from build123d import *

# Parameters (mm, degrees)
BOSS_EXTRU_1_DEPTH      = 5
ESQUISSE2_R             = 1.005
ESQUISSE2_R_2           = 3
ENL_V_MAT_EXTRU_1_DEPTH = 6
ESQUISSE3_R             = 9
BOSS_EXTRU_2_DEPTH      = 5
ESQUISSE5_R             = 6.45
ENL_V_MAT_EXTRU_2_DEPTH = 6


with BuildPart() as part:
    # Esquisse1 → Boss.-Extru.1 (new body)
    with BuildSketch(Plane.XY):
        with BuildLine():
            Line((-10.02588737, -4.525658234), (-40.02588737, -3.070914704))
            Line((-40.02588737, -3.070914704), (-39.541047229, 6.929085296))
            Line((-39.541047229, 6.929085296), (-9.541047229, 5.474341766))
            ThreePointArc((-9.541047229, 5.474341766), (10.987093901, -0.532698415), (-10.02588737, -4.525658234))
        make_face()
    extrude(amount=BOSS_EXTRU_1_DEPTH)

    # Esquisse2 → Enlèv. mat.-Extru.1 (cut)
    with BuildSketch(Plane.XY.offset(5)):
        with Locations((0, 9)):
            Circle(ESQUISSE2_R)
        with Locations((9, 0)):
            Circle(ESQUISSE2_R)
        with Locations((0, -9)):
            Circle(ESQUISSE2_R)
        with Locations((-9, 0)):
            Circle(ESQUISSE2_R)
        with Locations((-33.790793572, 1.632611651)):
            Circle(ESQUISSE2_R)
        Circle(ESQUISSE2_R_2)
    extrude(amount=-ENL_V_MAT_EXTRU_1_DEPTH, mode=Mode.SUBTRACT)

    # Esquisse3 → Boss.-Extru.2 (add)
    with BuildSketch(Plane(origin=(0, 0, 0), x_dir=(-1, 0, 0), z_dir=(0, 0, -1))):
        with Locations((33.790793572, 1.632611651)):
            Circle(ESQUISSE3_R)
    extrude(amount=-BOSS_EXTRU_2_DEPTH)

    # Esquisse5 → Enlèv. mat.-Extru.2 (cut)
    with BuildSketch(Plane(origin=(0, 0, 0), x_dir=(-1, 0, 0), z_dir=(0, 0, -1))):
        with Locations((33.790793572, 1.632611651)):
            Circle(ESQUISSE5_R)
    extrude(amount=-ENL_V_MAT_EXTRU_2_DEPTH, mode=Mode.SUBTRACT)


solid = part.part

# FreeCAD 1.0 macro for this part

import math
import FreeCAD as App
import Part
import Sketcher

V = App.Vector
Q = App.Units.Quantity

doc = App.newDocument("Part")
params = doc.addObject("Spreadsheet::Sheet", "Params")
for row, (alias, value) in enumerate([
    ("sketch1_radius", "11 mm"),
    ("pad1_length", "5 mm"),
    ("sketch2_diameter", "6 mm"),
    ("sketch2_diameter2", "2.01 mm"),
    ("pocket1_length", "6 mm"),
    ("sketch3_diameter", "18 mm"),
    ("pad2_length", "5 mm"),
    ("sketch4_diameter", "12.9 mm"),
    ("pocket2_length", "6 mm"),
], start=1):
    params.set(f"A{row}", alias)
    params.set(f"B{row}", "=" + value)
    params.setAlias(f"B{row}", alias)

body = doc.addObject("PartDesign::Body", "Body")

# Sketch on XY plane
sketch1 = body.newObject("Sketcher::SketchObject", "Sketch")
sketch1.AttachmentSupport = (doc.getObject("XY_Plane"), [""])
sketch1.MapMode = "FlatFace"
sketch1.addGeometry(Part.LineSegment(V(-40.025887, -3.070915, 0), V(-10.025887, -4.525658, 0)), False)
sketch1.addGeometry(Part.ArcOfCircle(Part.Circle(V(0, 0, 0), V(0, 0, 1), 11), math.radians(-155.705713), math.radians(150.154202)), False)
sketch1.addGeometry(Part.LineSegment(V(-9.541047, 5.474342, 0), V(-39.541047, 6.929085, 0)), False)
sketch1.addGeometry(Part.LineSegment(V(-39.541047, 6.929085, 0), V(-40.025887, -3.070915, 0)), False)
sketch1.addConstraint(Sketcher.Constraint("Coincident", 0, 2, 1, 1))
sketch1.addConstraint(Sketcher.Constraint("Coincident", 1, 2, 2, 1))
sketch1.addConstraint(Sketcher.Constraint("Coincident", 2, 2, 3, 1))
sketch1.addConstraint(Sketcher.Constraint("Coincident", 3, 2, 0, 1))
sketch1.addConstraint(Sketcher.Constraint("Coincident", 1, 3, -1, 1))
sketch1.addConstraint(Sketcher.Constraint("Parallel", 0, 2))
sketch1.addConstraint(Sketcher.Constraint("Equal", 0, 2))
sketch1.addConstraint(Sketcher.Constraint("Radius", 1, Q("11 mm")))
sketch1.addConstraint(Sketcher.Constraint("DistanceY", 0, 2, 1, 2, Q("10 mm")))
sketch1.addConstraint(Sketcher.Constraint("DistanceX", 2, 2, 1, 2, Q("30 mm")))
sketch1.addConstraint(Sketcher.Constraint("Distance", 0, Q("30.035251 mm")))
sketch1.addConstraint(Sketcher.Constraint("DistanceY", 0, 2, -1, 1, Q("4.525658 mm")))
sketch1.setExpression("Constraints[7]", "Params.sketch1_radius")
pad1 = body.newObject("PartDesign::Pad", "Pad")
pad1.Profile = sketch1
pad1.setExpression("Length", "Params.pad1_length")

# Sketch on XY plane
sketch2 = body.newObject("Sketcher::SketchObject", "Sketch001")
sketch2.AttachmentSupport = (doc.getObject("XY_Plane"), [""])
sketch2.MapMode = "FlatFace"
sketch2.AttachmentOffset = App.Placement(V(0, 0, 5), App.Rotation())
sketch2.addGeometry(Part.Circle(V(0, 9, 0), V(0, 0, 1), 1.005), False)
sketch2.addGeometry(Part.Circle(V(9, 0, 0), V(0, 0, 1), 1.005), False)
sketch2.addGeometry(Part.Circle(V(0, -9, 0), V(0, 0, 1), 1.005), False)
sketch2.addGeometry(Part.Circle(V(-9, 0, 0), V(0, 0, 1), 1.005), False)
sketch2.addGeometry(Part.Circle(V(-33.790794, 1.632612, 0), V(0, 0, 1), 1.005), False)
sketch2.addGeometry(Part.Circle(V(0, 0, 0), V(0, 0, 1), 3), False)
sketch2.addConstraint(Sketcher.Constraint("Coincident", 5, 3, -1, 1))
sketch2.addConstraint(Sketcher.Constraint("Equal", 0, 1))
sketch2.addConstraint(Sketcher.Constraint("Equal", 1, 2))
sketch2.addConstraint(Sketcher.Constraint("Equal", 2, 3))
sketch2.addConstraint(Sketcher.Constraint("Equal", 3, 4))
sketch2.addConstraint(Sketcher.Constraint("Symmetric", 0, 3, 2, 3, -1, 1))
sketch2.addConstraint(Sketcher.Constraint("Symmetric", 1, 3, 3, 3, -1, 1))
sketch2.addConstraint(Sketcher.Constraint("PointOnObject", 0, 3, -2))
sketch2.addConstraint(Sketcher.Constraint("PointOnObject", 1, 3, -1))
sketch2.addConstraint(Sketcher.Constraint("Diameter", 5, Q("6 mm")))
sketch2.addConstraint(Sketcher.Constraint("Diameter", 0, Q("2.01 mm")))
sketch2.addConstraint(Sketcher.Constraint("DistanceY", -1, 1, 0, 3, Q("9 mm")))
sketch2.addConstraint(Sketcher.Constraint("DistanceX", -1, 1, 1, 3, Q("9 mm")))
sketch2.addConstraint(Sketcher.Constraint("DistanceY", -1, 1, 4, 3, Q("1.632612 mm")))
sketch2.addConstraint(Sketcher.Constraint("DistanceX", 4, 3, -1, 1, Q("33.790794 mm")))
sketch2.setExpression("Constraints[9]", "Params.sketch2_diameter")
sketch2.setExpression("Constraints[10]", "Params.sketch2_diameter2")
pocket1 = body.newObject("PartDesign::Pocket", "Pocket")
pocket1.Profile = sketch2
pocket1.setExpression("Length", "Params.pocket1_length")

# Sketch on XY plane
sketch3 = body.newObject("Sketcher::SketchObject", "Sketch002")
sketch3.AttachmentSupport = (doc.getObject("XY_Plane"), [""])
sketch3.MapMode = "FlatFace"
sketch3.addGeometry(Part.Circle(V(-33.790794, 1.632612, 0), V(0, 0, 1), 9), False)
sketch3.addConstraint(Sketcher.Constraint("Diameter", 0, Q("18 mm")))
sketch3.addConstraint(Sketcher.Constraint("DistanceY", -1, 1, 0, 3, Q("1.632612 mm")))
sketch3.addConstraint(Sketcher.Constraint("DistanceX", 0, 3, -1, 1, Q("33.790794 mm")))
sketch3.setExpression("Constraints[0]", "Params.sketch3_diameter")
pad2 = body.newObject("PartDesign::Pad", "Pad001")
pad2.Profile = sketch3
pad2.setExpression("Length", "Params.pad2_length")

# Sketch on XY plane
sketch4 = body.newObject("Sketcher::SketchObject", "Sketch003")
sketch4.AttachmentSupport = (doc.getObject("XY_Plane"), [""])
sketch4.MapMode = "FlatFace"
sketch4.addGeometry(Part.Circle(V(-33.790794, 1.632612, 0), V(0, 0, 1), 6.45), False)
sketch4.addConstraint(Sketcher.Constraint("Diameter", 0, Q("12.9 mm")))
sketch4.addConstraint(Sketcher.Constraint("DistanceY", -1, 1, 0, 3, Q("1.632612 mm")))
sketch4.addConstraint(Sketcher.Constraint("DistanceX", 0, 3, -1, 1, Q("33.790794 mm")))
sketch4.setExpression("Constraints[0]", "Params.sketch4_diameter")
pocket2 = body.newObject("PartDesign::Pocket", "Pocket001")
pocket2.Profile = sketch4
pocket2.setExpression("Length", "Params.pocket2_length")
pocket2.Reversed = True

doc.recompute()
